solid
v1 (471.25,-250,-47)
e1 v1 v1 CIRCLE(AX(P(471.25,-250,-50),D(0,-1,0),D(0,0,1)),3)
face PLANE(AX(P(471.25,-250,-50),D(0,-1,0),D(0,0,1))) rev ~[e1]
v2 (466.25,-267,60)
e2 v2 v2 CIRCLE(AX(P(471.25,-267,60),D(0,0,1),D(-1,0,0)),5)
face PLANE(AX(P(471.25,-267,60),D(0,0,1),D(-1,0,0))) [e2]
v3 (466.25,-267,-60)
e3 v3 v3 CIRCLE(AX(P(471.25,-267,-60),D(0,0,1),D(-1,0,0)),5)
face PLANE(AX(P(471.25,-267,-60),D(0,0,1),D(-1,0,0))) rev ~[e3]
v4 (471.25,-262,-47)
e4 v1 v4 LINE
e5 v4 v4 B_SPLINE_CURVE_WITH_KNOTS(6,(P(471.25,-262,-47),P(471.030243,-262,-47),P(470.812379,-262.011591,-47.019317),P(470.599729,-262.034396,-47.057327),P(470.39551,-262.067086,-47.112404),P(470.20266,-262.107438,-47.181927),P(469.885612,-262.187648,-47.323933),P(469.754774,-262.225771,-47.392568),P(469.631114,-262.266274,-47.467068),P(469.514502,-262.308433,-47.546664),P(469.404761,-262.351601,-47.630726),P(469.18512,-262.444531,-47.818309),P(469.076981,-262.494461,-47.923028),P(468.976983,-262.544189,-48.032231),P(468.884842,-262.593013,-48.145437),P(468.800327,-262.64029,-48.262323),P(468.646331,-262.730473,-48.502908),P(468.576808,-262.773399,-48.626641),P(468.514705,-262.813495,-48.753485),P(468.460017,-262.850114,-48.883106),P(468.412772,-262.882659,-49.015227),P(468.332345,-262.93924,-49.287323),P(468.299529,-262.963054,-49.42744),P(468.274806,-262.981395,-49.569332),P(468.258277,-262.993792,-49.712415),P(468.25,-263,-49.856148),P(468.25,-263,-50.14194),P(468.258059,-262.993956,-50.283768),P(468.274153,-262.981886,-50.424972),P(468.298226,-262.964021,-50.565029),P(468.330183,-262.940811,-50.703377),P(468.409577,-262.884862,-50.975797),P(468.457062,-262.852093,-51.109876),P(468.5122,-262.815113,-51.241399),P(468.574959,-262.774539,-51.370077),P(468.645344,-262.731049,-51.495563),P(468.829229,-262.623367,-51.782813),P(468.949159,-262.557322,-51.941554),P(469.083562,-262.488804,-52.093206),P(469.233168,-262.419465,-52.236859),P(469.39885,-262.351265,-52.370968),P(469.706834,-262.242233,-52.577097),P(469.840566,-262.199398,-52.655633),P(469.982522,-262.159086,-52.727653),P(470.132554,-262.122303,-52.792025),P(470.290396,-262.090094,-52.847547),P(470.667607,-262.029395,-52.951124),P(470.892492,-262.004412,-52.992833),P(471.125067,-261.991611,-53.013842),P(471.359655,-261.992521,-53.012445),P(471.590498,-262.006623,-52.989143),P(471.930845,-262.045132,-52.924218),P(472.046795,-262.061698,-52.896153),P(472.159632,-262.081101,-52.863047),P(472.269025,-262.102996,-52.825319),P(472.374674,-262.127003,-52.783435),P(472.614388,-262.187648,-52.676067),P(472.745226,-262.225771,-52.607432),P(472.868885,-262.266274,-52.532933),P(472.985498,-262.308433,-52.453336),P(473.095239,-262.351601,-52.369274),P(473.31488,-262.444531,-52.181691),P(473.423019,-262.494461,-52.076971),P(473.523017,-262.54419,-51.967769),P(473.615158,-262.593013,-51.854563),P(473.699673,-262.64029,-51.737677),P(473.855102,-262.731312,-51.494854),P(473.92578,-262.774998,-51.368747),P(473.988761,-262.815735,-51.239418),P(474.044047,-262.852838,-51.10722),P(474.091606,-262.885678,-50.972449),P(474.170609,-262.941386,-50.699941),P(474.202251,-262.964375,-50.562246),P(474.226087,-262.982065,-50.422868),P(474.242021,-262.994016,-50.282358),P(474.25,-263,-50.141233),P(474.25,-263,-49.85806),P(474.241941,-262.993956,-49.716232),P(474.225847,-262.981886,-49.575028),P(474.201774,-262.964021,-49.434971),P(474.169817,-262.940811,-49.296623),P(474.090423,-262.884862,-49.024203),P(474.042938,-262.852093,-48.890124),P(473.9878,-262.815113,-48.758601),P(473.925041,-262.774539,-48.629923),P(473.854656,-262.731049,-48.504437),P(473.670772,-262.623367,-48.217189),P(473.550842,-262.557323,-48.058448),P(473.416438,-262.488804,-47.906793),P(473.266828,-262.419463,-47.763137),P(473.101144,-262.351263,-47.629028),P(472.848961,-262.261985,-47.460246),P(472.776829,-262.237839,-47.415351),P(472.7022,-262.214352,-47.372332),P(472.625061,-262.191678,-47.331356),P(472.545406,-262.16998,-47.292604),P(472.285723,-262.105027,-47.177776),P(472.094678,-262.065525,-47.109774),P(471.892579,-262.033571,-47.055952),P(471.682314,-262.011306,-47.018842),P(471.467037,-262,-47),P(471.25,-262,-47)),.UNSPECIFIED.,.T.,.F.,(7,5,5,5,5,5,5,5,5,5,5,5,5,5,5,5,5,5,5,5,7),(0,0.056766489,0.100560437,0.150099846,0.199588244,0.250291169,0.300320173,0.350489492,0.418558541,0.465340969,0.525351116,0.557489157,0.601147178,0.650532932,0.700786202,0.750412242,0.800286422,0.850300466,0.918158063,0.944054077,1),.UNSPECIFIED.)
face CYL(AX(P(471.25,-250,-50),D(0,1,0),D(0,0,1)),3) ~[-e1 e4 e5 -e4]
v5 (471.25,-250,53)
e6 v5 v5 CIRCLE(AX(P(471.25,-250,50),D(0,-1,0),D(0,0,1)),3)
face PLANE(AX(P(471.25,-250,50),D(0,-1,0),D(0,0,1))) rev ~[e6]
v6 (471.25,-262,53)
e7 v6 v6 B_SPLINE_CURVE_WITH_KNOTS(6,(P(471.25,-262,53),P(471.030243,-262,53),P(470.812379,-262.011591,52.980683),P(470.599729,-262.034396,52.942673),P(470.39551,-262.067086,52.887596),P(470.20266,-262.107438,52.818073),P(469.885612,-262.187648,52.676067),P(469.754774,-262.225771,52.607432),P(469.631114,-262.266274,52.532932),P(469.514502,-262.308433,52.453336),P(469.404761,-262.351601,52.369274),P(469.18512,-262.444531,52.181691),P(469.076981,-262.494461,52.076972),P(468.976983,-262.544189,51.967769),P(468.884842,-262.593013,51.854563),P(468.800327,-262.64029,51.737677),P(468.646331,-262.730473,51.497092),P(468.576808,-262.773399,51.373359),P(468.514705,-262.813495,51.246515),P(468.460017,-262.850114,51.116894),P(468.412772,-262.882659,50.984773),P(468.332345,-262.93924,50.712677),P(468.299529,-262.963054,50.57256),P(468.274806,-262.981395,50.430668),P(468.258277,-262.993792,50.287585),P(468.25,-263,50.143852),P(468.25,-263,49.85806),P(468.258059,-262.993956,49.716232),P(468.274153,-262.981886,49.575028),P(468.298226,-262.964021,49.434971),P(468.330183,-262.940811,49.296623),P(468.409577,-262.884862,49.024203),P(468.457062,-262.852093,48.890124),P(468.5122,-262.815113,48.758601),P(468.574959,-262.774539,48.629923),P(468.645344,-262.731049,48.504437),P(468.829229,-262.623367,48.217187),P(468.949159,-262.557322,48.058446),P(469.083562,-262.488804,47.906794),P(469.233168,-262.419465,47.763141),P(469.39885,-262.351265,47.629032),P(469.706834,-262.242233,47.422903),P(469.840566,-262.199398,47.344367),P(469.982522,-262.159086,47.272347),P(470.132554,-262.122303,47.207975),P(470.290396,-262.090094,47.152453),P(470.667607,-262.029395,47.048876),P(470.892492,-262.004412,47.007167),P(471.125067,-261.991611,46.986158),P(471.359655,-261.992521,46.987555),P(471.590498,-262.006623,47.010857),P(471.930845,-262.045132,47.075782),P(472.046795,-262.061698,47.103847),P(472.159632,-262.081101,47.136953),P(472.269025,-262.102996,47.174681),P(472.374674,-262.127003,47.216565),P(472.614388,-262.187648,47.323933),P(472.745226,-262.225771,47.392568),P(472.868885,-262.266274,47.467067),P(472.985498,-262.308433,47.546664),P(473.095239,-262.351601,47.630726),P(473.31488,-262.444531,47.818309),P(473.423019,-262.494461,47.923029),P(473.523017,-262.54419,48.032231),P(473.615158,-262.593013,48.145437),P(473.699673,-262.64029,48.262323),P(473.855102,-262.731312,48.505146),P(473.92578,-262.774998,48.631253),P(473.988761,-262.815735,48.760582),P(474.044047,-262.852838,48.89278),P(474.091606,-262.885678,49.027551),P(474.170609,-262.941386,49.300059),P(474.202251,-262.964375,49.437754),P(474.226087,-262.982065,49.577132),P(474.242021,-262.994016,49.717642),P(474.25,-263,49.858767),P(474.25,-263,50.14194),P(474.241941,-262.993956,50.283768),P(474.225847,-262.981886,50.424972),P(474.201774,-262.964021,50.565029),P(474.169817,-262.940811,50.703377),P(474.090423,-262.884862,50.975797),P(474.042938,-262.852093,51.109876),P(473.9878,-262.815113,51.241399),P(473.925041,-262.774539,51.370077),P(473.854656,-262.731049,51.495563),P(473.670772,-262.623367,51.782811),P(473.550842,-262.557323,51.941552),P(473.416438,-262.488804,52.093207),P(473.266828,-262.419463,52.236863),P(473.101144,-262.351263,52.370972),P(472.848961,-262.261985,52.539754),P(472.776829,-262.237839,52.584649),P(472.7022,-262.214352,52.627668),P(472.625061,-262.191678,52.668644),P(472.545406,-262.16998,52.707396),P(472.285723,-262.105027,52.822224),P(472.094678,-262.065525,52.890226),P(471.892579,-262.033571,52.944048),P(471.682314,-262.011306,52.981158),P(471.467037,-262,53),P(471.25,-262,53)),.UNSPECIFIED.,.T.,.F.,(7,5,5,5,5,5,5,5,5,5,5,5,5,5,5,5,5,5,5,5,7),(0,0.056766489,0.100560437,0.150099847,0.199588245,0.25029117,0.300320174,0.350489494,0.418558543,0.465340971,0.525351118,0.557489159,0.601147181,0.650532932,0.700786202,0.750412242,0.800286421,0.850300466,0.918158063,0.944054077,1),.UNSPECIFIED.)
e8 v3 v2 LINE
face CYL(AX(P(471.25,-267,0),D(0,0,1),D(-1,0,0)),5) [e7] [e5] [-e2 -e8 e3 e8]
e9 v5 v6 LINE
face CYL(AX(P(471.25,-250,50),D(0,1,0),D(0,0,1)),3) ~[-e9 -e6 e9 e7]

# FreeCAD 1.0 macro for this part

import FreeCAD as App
import Part
import Sketcher
from FreeCAD import Vector

doc = App.newDocument("Part")
body = doc.addObject("PartDesign::Body", "Body")

# Sketch on XY plane
sketch1 = doc.addObject("Sketcher::SketchObject", "Sketch")
body.addObject(sketch1)
sketch1.AttachmentSupport = (doc.XY_Plane, [""])
sketch1.MapMode = "FlatFace"
sketch1.addGeometry(Part.Circle(Vector(471, -267, 0), Vector(0, 0, 1), 5), False)
sketch1.addConstraint([
    Sketcher.Constraint("Diameter", 0, 10.0),
    Sketcher.Constraint("DistanceY", 0, 3, -1, 1, 267.0),
    Sketcher.Constraint("DistanceX", -1, 1, 0, 3, 471.25),
])
pad1 = doc.addObject("PartDesign::Pad", "Pad")
body.addObject(pad1)
pad1.Profile = sketch1
pad1.Length = 120
pad1.Midplane = True
body2 = doc.addObject("PartDesign::Body", "Body001")

# Sketch on XZ plane
sketch2 = doc.addObject("Sketcher::SketchObject", "Sketch001")
body2.addObject(sketch2)
sketch2.AttachmentSupport = (doc.getObject("XZ_Plane001"), [""])
sketch2.MapMode = "FlatFace"
sketch2.AttachmentOffset = App.Placement(Vector(0, 0, 250), App.Rotation())
sketch2.addGeometry(Part.Circle(Vector(471.2, 50, 0), Vector(0, 0, 1), 3), False)
sketch2.addConstraint([
    Sketcher.Constraint("Diameter", 0, 6.0),
    Sketcher.Constraint("DistanceY", -1, 1, 0, 3, 50.0),
    Sketcher.Constraint("DistanceX", -1, 1, 0, 3, 471.25),
])
pad2 = doc.addObject("PartDesign::Pad", "Pad001")
body2.addObject(pad2)
pad2.Profile = sketch2
pad2.Length = 17
body3 = doc.addObject("PartDesign::Body", "Body002")

# Sketch on XZ plane
sketch3 = doc.addObject("Sketcher::SketchObject", "Sketch002")
body3.addObject(sketch3)
sketch3.AttachmentSupport = (doc.getObject("XZ_Plane002"), [""])
sketch3.MapMode = "FlatFace"
sketch3.AttachmentOffset = App.Placement(Vector(0, 0, 250), App.Rotation())
sketch3.addGeometry(Part.Circle(Vector(471.2, -50, 0), Vector(0, 0, 1), 3), False)
sketch3.addConstraint([
    Sketcher.Constraint("Diameter", 0, 6.0),
    Sketcher.Constraint("DistanceY", 0, 3, -1, 1, 50.0),
    Sketcher.Constraint("DistanceX", -1, 1, 0, 3, 471.25),
])
pad3 = doc.addObject("PartDesign::Pad", "Pad002")
body3.addObject(pad3)
pad3.Profile = sketch3
pad3.Length = 17
doc.recompute()

boolean = doc.addObject("PartDesign::Boolean", "Boolean")
body3.addObject(boolean)
boolean.Type = "Fuse"
boolean.addObjects([body])
doc.recompute()

boolean2 = doc.addObject("PartDesign::Boolean", "Boolean001")
body3.addObject(boolean2)
boolean2.Type = "Fuse"
boolean2.addObjects([body2])

doc.recompute()
